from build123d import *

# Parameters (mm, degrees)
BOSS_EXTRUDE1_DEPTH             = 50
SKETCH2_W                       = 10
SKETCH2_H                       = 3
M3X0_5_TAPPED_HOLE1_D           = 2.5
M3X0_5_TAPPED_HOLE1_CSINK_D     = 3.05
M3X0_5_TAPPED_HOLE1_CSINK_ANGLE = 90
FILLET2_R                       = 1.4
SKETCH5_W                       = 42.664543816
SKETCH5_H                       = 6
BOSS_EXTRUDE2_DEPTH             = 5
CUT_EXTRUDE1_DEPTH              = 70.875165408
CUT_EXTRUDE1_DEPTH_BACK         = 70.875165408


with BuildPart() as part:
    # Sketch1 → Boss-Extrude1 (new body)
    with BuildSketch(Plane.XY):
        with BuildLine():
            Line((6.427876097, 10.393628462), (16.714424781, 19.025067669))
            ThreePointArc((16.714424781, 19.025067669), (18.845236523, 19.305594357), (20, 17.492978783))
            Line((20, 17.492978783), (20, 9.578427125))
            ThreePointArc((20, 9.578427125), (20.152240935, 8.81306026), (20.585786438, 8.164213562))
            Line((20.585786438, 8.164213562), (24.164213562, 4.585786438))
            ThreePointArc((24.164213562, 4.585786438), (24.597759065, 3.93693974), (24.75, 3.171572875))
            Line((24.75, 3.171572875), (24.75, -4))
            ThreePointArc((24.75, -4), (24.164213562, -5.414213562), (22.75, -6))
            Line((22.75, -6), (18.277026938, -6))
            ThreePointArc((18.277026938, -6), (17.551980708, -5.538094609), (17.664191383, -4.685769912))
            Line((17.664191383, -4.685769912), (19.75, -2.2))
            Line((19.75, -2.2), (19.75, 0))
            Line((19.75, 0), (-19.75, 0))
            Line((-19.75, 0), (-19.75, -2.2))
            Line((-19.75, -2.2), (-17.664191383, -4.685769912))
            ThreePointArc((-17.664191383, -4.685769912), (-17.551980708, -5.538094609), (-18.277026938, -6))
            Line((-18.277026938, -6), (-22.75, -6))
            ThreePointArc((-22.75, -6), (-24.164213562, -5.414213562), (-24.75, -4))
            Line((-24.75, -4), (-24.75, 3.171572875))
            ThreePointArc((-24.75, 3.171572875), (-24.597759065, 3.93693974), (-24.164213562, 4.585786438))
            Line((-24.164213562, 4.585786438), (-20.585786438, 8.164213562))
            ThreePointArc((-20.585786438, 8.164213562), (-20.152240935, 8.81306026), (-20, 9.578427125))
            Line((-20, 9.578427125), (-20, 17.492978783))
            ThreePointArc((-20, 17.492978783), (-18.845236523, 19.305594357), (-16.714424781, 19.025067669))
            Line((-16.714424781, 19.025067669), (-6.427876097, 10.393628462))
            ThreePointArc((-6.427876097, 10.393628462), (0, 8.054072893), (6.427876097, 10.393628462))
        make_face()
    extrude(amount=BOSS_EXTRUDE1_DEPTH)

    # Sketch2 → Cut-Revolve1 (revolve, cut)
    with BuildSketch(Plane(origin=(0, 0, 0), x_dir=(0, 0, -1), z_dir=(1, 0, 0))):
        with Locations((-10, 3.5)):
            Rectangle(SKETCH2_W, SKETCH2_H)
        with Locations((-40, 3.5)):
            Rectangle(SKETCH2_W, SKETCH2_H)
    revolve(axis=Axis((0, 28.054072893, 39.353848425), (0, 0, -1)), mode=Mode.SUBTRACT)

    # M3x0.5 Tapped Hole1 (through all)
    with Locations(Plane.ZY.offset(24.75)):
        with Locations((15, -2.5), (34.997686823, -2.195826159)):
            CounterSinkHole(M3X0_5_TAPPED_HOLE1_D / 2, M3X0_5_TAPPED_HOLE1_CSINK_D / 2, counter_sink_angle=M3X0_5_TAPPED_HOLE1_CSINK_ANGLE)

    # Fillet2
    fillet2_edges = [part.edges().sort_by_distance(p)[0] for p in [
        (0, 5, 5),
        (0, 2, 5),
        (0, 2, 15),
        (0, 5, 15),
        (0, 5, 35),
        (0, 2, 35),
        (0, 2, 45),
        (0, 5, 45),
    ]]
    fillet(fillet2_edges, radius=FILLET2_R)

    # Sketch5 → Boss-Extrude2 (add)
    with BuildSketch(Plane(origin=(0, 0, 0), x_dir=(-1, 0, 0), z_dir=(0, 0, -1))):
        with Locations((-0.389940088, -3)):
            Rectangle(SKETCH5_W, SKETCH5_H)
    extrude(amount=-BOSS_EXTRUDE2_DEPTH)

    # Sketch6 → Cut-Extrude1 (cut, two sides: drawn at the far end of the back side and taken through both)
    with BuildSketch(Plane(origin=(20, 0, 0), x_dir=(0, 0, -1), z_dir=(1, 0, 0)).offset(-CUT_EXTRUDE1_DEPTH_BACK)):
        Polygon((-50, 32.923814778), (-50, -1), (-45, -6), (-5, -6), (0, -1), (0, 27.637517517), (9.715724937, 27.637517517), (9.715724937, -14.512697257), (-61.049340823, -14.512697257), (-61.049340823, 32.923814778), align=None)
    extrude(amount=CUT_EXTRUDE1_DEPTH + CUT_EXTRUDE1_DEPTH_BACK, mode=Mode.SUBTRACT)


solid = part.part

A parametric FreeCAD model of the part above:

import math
import FreeCAD as App
import Part
import Sketcher
Q = App.Units.Quantity


def edges_at(feature, points):
    """Names of the edges that pass closest to the given points."""
    edges = feature.Shape.Edges
    near = lambda p: min(range(len(edges)), key=lambda i: edges[i].distToShape(Part.Vertex(*p))[0])
    return sorted({f"Edge{near(p) + 1}" for p in points})

doc = App.newDocument("Part")
params = doc.addObject("Spreadsheet::Sheet", "Params")
for row, (alias, value) in enumerate([
    ("sketch1_radius", "10 mm"),
    ("sketch1_radius2", "2 mm"),
    ("sketch1_radius3", "0.8 mm"),
    ("sketch1_width", "39.5 mm"),
    ("sketch1_height", "2.2 mm"),
    ("pad1_length", "50 mm"),
    ("sketch2_width", "3 mm"),
    ("sketch2_height", "10 mm"),
    ("sketch2_height2", "40 mm"),
    ("groove_angle", "360 deg"),
    ("sketch3_diameter", "2.5 mm"),
    ("hole_diameter", "2.5 mm"),
    ("hole_csink_diameter", "3.05 mm"),
    ("fillet_radius", "1.4 mm"),
    ("sketch4_height", "6 mm"),
    ("pad2_length", "5 mm"),
    ("sketch5_height", "40 mm"),
], start=1):
    params.set(f"A{row}", alias)
    params.set(f"B{row}", "=" + value)
    params.setAlias(f"B{row}", alias)

body = doc.addObject("PartDesign::Body", "Body")

sketch1 = doc.addObject("Sketcher::SketchObject", "Sketch")
body.addObject(sketch1)
sketch1.AttachmentSupport = (doc.XY_Plane, [""])
sketch1.MapMode = "FlatFace"
sketch1.addGeometry(Part.LineSegment(App.Vector(16.7, 19, 0), App.Vector(6.4, 10.4, 0)), False)
sketch1.addGeometry(Part.ArcOfCircle(Part.Circle(App.Vector(0, 18.1, 0), App.Vector(0, 0, 1), 10), math.radians(-130), math.radians(-50)), False)
sketch1.addGeometry(Part.LineSegment(App.Vector(-6.4, 10.4, 0), App.Vector(-16.7, 19, 0)), False)
sketch1.addGeometry(Part.ArcOfCircle(Part.Circle(App.Vector(-18, 17.5, 0), App.Vector(0, 0, 1), 2), math.radians(50), math.radians(180)), False)
sketch1.addGeometry(Part.LineSegment(App.Vector(-20, 17.5, 0), App.Vector(-20, 9.6, 0)), False)
sketch1.addGeometry(Part.ArcOfCircle(Part.Circle(App.Vector(-22, 9.6, 0), App.Vector(0, 0, 1), 2), math.radians(-45), math.radians(0)), False)
sketch1.addGeometry(Part.LineSegment(App.Vector(-20.6, 8.2, 0), App.Vector(-24.2, 4.6, 0)), False)
sketch1.addGeometry(Part.ArcOfCircle(Part.Circle(App.Vector(-22.8, 3.2, 0), App.Vector(0, 0, 1), 2), math.radians(135), math.radians(180)), False)
sketch1.addGeometry(Part.LineSegment(App.Vector(-24.8, 3.2, 0), App.Vector(-24.8, -4, 0)), False)
sketch1.addGeometry(Part.ArcOfCircle(Part.Circle(App.Vector(-22.7, -4, 0), App.Vector(0, 0, 1), 2), math.radians(-180), math.radians(-90)), False)
sketch1.addGeometry(Part.LineSegment(App.Vector(-22.8, -6, 0), App.Vector(-18.3, -6, 0)), False)
sketch1.addGeometry(Part.ArcOfCircle(Part.Circle(App.Vector(-18.3, -5.2, 0), App.Vector(0, 0, 1), 0.8), math.radians(-90), math.radians(40)), False)
sketch1.addGeometry(Part.LineSegment(App.Vector(-17.7, -4.7, 0), App.Vector(-19.8, -2.2, 0)), False)
sketch1.addGeometry(Part.LineSegment(App.Vector(-19.8, -2.2, 0), App.Vector(-19.8, 0, 0)), False)
sketch1.addGeometry(Part.LineSegment(App.Vector(-19.8, 0, 0), App.Vector(19.8, 0, 0)), False)
sketch1.addGeometry(Part.LineSegment(App.Vector(19.8, 0, 0), App.Vector(19.8, -2.2, 0)), False)
sketch1.addGeometry(Part.LineSegment(App.Vector(19.8, -2.2, 0), App.Vector(17.7, -4.7, 0)), False)
sketch1.addGeometry(Part.ArcOfCircle(Part.Circle(App.Vector(18.3, -5.2, 0), App.Vector(0, 0, 1), 0.8), math.radians(140), math.radians(270)), False)
sketch1.addGeometry(Part.LineSegment(App.Vector(18.3, -6, 0), App.Vector(22.8, -6, 0)), False)
sketch1.addGeometry(Part.ArcOfCircle(Part.Circle(App.Vector(22.7, -4, 0), App.Vector(0, 0, 1), 2), math.radians(-90), math.radians(0)), False)
sketch1.addGeometry(Part.LineSegment(App.Vector(24.8, -4, 0), App.Vector(24.8, 3.2, 0)), False)
sketch1.addGeometry(Part.ArcOfCircle(Part.Circle(App.Vector(22.8, 3.2, 0), App.Vector(0, 0, 1), 2), math.radians(0), math.radians(45)), False)
sketch1.addGeometry(Part.LineSegment(App.Vector(24.2, 4.6, 0), App.Vector(20.6, 8.2, 0)), False)
sketch1.addGeometry(Part.ArcOfCircle(Part.Circle(App.Vector(22, 9.6, 0), App.Vector(0, 0, 1), 2), math.radians(180), math.radians(225)), False)
sketch1.addGeometry(Part.LineSegment(App.Vector(20, 9.6, 0), App.Vector(20, 17.5, 0)), False)
sketch1.addGeometry(Part.ArcOfCircle(Part.Circle(App.Vector(18, 17.5, 0), App.Vector(0, 0, 1), 2), math.radians(0), math.radians(130)), False)
sketch1.addConstraint(Sketcher.Constraint("Tangent", 0, 2, 1, 2))
sketch1.addConstraint(Sketcher.Constraint("Tangent", 1, 1, 2, 1))
sketch1.addConstraint(Sketcher.Constraint("Tangent", 2, 2, 3, 1))
sketch1.addConstraint(Sketcher.Constraint("Tangent", 3, 2, 4, 1))
sketch1.addConstraint(Sketcher.Constraint("Tangent", 4, 2, 5, 2))
sketch1.addConstraint(Sketcher.Constraint("Tangent", 5, 1, 6, 1))
sketch1.addConstraint(Sketcher.Constraint("Tangent", 6, 2, 7, 1))
sketch1.addConstraint(Sketcher.Constraint("Tangent", 7, 2, 8, 1))
sketch1.addConstraint(Sketcher.Constraint("Tangent", 8, 2, 9, 1))
sketch1.addConstraint(Sketcher.Constraint("Tangent", 9, 2, 10, 1))
sketch1.addConstraint(Sketcher.Constraint("Tangent", 10, 2, 11, 1))
sketch1.addConstraint(Sketcher.Constraint("Tangent", 11, 2, 12, 1))
sketch1.addConstraint(Sketcher.Constraint("Coincident", 12, 2, 13, 1))
sketch1.addConstraint(Sketcher.Constraint("Coincident", 13, 2, 14, 1))
sketch1.addConstraint(Sketcher.Constraint("Coincident", 14, 2, 15, 1))
sketch1.addConstraint(Sketcher.Constraint("Coincident", 15, 2, 16, 1))
sketch1.addConstraint(Sketcher.Constraint("Tangent", 16, 2, 17, 1))
sketch1.addConstraint(Sketcher.Constraint("Tangent", 17, 2, 18, 1))
sketch1.addConstraint(Sketcher.Constraint("Tangent", 18, 2, 19, 1))
sketch1.addConstraint(Sketcher.Constraint("Tangent", 19, 2, 20, 1))
sketch1.addConstraint(Sketcher.Constraint("Tangent", 20, 2, 21, 1))
sketch1.addConstraint(Sketcher.Constraint("Tangent", 21, 2, 22, 1))
sketch1.addConstraint(Sketcher.Constraint("Tangent", 22, 2, 23, 2))
sketch1.addConstraint(Sketcher.Constraint("Tangent", 23, 1, 24, 1))
sketch1.addConstraint(Sketcher.Constraint("Tangent", 24, 2, 25, 1))
sketch1.addConstraint(Sketcher.Constraint("Tangent", 25, 2, 0, 1))
sketch1.addConstraint(Sketcher.Constraint("Vertical", 4))
sketch1.addConstraint(Sketcher.Constraint("Vertical", 8))
sketch1.addConstraint(Sketcher.Constraint("Horizontal", 10))
sketch1.addConstraint(Sketcher.Constraint("Vertical", 13))
sketch1.addConstraint(Sketcher.Constraint("Horizontal", 14))
sketch1.addConstraint(Sketcher.Constraint("Vertical", 15))
sketch1.addConstraint(Sketcher.Constraint("Horizontal", 18))
sketch1.addConstraint(Sketcher.Constraint("Vertical", 20))
sketch1.addConstraint(Sketcher.Constraint("Vertical", 24))
sketch1.addConstraint(Sketcher.Constraint("Equal", 3, 5))
sketch1.addConstraint(Sketcher.Constraint("Equal", 5, 7))
sketch1.addConstraint(Sketcher.Constraint("Equal", 7, 9))
sketch1.addConstraint(Sketcher.Constraint("Equal", 11, 17))
sketch1.addConstraint(Sketcher.Constraint("Equal", 9, 19))
sketch1.addConstraint(Sketcher.Constraint("Equal", 19, 21))
sketch1.addConstraint(Sketcher.Constraint("Equal", 21, 23))
sketch1.addConstraint(Sketcher.Constraint("Equal", 23, 25))
sketch1.addConstraint(Sketcher.Constraint("Symmetric", 13, 2, 14, 2, -1, 1))
sketch1.addConstraint(Sketcher.Constraint("Symmetric", 11, 3, 17, 3, -2))
sketch1.addConstraint(Sketcher.Constraint("Symmetric", 7, 3, 21, 3, -2))
sketch1.addConstraint(Sketcher.Constraint("Symmetric", 5, 3, 23, 3, -2))
sketch1.addConstraint(Sketcher.Constraint("Symmetric", 0, 2, 1, 1, -2))
sketch1.addConstraint(Sketcher.Constraint("Perpendicular", 0, 12))
sketch1.addConstraint(Sketcher.Constraint("Perpendicular", 2, 16))
sketch1.addConstraint(Sketcher.Constraint("Perpendicular", 6, 22))
sketch1.addConstraint(Sketcher.Constraint("Radius", 1, 10.0))
sketch1.addConstraint(Sketcher.Constraint("Radius", 3, 2.0))
sketch1.addConstraint(Sketcher.Constraint("Radius", 11, 0.8))
sketch1.addConstraint(Sketcher.Constraint("Angle", 0, Q("-140 deg")))
sketch1.addConstraint(Sketcher.Constraint("DistanceX", 14, 1, 14, 2, 39.5))
sketch1.addConstraint(Sketcher.Constraint("DistanceY", 13, 1, 13, 2, 2.2))
sketch1.addConstraint(Sketcher.Constraint("DistanceX", 3, 3, -1, 1, 18.0))
sketch1.addConstraint(Sketcher.Constraint("DistanceY", 9, 3, -1, 1, 4.0))
sketch1.addConstraint(Sketcher.Constraint("DistanceX", 9, 3, 12, 2, 3.0))
sketch1.addConstraint(Sketcher.Constraint("DistanceY", 4, 2, 4, 1, 7.914552))
sketch1.addConstraint(Sketcher.Constraint("DistanceY", 8, 2, 8, 1, 7.171573))
sketch1.setExpression("Constraints[51]", "Params.sketch1_radius")
sketch1.setExpression("Constraints[52]", "Params.sketch1_radius2")
sketch1.setExpression("Constraints[53]", "Params.sketch1_radius3")
sketch1.setExpression("Constraints[55]", "Params.sketch1_width")
sketch1.setExpression("Constraints[56]", "Params.sketch1_height")
pad1 = doc.addObject("PartDesign::Pad", "Pad")
body.addObject(pad1)
pad1.Profile = sketch1
pad1.setExpression("Length", "Params.pad1_length")

sketch2 = doc.addObject("Sketcher::SketchObject", "Sketch001")
body.addObject(sketch2)
sketch2.AttachmentSupport = (doc.YZ_Plane, [""])
sketch2.MapMode = "FlatFace"
sketch2.addGeometry(Part.LineSegment(App.Vector(5, 15, 0), App.Vector(2, 15, 0)), False)
sketch2.addGeometry(Part.LineSegment(App.Vector(2, 15, 0), App.Vector(2, 5, 0)), False)
sketch2.addGeometry(Part.LineSegment(App.Vector(2, 5, 0), App.Vector(5, 5, 0)), False)
sketch2.addGeometry(Part.LineSegment(App.Vector(5, 5, 0), App.Vector(5, 15, 0)), False)
sketch2.addGeometry(Part.LineSegment(App.Vector(5, 45, 0), App.Vector(2, 45, 0)), False)
sketch2.addGeometry(Part.LineSegment(App.Vector(2, 45, 0), App.Vector(2, 35, 0)), False)
sketch2.addGeometry(Part.LineSegment(App.Vector(2, 35, 0), App.Vector(5, 35, 0)), False)
sketch2.addGeometry(Part.LineSegment(App.Vector(5, 35, 0), App.Vector(5, 45, 0)), False)
sketch2.addGeometry(Part.LineSegment(App.Vector(28.1, 45, 0), App.Vector(28.1, 5, 0)), True)
sketch2.addConstraint(Sketcher.Constraint("Coincident", 0, 2, 1, 1))
sketch2.addConstraint(Sketcher.Constraint("Coincident", 1, 2, 2, 1))
sketch2.addConstraint(Sketcher.Constraint("Coincident", 2, 2, 3, 1))
sketch2.addConstraint(Sketcher.Constraint("Coincident", 3, 2, 0, 1))
sketch2.addConstraint(Sketcher.Constraint("Coincident", 4, 2, 5, 1))
sketch2.addConstraint(Sketcher.Constraint("Coincident", 5, 2, 6, 1))
sketch2.addConstraint(Sketcher.Constraint("Coincident", 6, 2, 7, 1))
sketch2.addConstraint(Sketcher.Constraint("Coincident", 7, 2, 4, 1))
sketch2.addConstraint(Sketcher.Constraint("Horizontal", 0))
sketch2.addConstraint(Sketcher.Constraint("Vertical", 1))
sketch2.addConstraint(Sketcher.Constraint("Horizontal", 2))
sketch2.addConstraint(Sketcher.Constraint("Vertical", 3))
sketch2.addConstraint(Sketcher.Constraint("Horizontal", 4))
sketch2.addConstraint(Sketcher.Constraint("Vertical", 5))
sketch2.addConstraint(Sketcher.Constraint("Horizontal", 6))
sketch2.addConstraint(Sketcher.Constraint("Vertical", 7))
sketch2.addConstraint(Sketcher.Constraint("Vertical", 8))
sketch2.addConstraint(Sketcher.Constraint("Horizontal", 7, 2, 8, 1))
sketch2.addConstraint(Sketcher.Constraint("Horizontal", 2, 2, 8, 2))
sketch2.addConstraint(Sketcher.Constraint("Vertical", 1, 2, 4, 2))
sketch2.addConstraint(Sketcher.Constraint("Vertical", 3, 2, 6, 2))
sketch2.addConstraint(Sketcher.Constraint("Equal", 3, 5))
sketch2.addConstraint(Sketcher.Constraint("DistanceX", 0, 2, 0, 1, 3.0))
sketch2.addConstraint(Sketcher.Constraint("DistanceY", 1, 2, 1, 1, 10.0))
sketch2.addConstraint(Sketcher.Constraint("DistanceY", 8, 2, 8, 1, 40.0))
sketch2.addConstraint(Sketcher.Constraint("DistanceX", -1, 1, 0, 2, 2.0))
sketch2.addConstraint(Sketcher.Constraint("DistanceY", -1, 1, 0, 2, 15.0))
sketch2.addConstraint(Sketcher.Constraint("DistanceX", -1, 1, 8, 1, 28.054073))
sketch2.setExpression("Constraints[22]", "Params.sketch2_width")
sketch2.setExpression("Constraints[23]", "Params.sketch2_height")
sketch2.setExpression("Constraints[24]", "Params.sketch2_height2")
groove = doc.addObject("PartDesign::Groove", "Groove")
body.addObject(groove)
groove.Profile = sketch2
groove.ReferenceAxis = (sketch2, ["Axis0"])
groove.setExpression("Angle", "Params.groove_angle")

sketch3 = doc.addObject("Sketcher::SketchObject", "Sketch002")
body.addObject(sketch3)
sketch3.AttachmentSupport = (doc.YZ_Plane, [""])
sketch3.MapMode = "FlatFace"
sketch3.AttachmentOffset = App.Placement(App.Vector(0, 0, -24.75), App.Rotation())
sketch3.addGeometry(Part.Circle(App.Vector(-2.5, 15, 0), App.Vector(0, 0, 1), 1.2), False)
sketch3.addGeometry(Part.Circle(App.Vector(-2.2, 35, 0), App.Vector(0, 0, 1), 1.2), False)
sketch3.addConstraint(Sketcher.Constraint("Equal", 0, 1))
sketch3.addConstraint(Sketcher.Constraint("Diameter", 0, 2.5))
sketch3.addConstraint(Sketcher.Constraint("DistanceY", -1, 1, 0, 3, 15.0))
sketch3.addConstraint(Sketcher.Constraint("DistanceX", 0, 3, -1, 1, 2.5))
sketch3.addConstraint(Sketcher.Constraint("DistanceX", 1, 3, -1, 1, 2.195826))
sketch3.addConstraint(Sketcher.Constraint("DistanceY", -1, 1, 1, 3, 34.997687))
sketch3.setExpression("Constraints[1]", "Params.sketch3_diameter")
doc.recompute()
hole = doc.addObject("PartDesign::Hole", "Hole")
body.addObject(hole)
hole.Profile = sketch3
hole.ThreadType = "None"
hole.setExpression("Diameter", "Params.hole_diameter")
hole.DepthType = "ThroughAll"
hole.HoleCutType = "Countersink"
hole.setExpression("HoleCutDiameter", "Params.hole_csink_diameter")
hole.HoleCutCountersinkAngle = 90
hole.Reversed = True
doc.recompute()

fillet = doc.addObject("PartDesign::Fillet", "Fillet")
body.addObject(fillet)
fillet.Base = (hole, edges_at(hole, [
    (0, 5, 5),
    (0, 2, 5),
    (0, 2, 15),
    (0, 5, 15),
    (0, 5, 35),
    (0, 2, 35),
    (0, 2, 45),
    (0, 5, 45),
]))
fillet.setExpression("Radius", "Params.fillet_radius")

sketch4 = doc.addObject("Sketcher::SketchObject", "Sketch003")
body.addObject(sketch4)
sketch4.AttachmentSupport = (doc.XY_Plane, [""])
sketch4.MapMode = "FlatFace"
sketch4.addGeometry(Part.LineSegment(App.Vector(22, 0, 0), App.Vector(22, -6, 0)), False)
sketch4.addGeometry(Part.LineSegment(App.Vector(22, -6, 0), App.Vector(-21, -6, 0)), False)
sketch4.addGeometry(Part.LineSegment(App.Vector(-21, -6, 0), App.Vector(-21, 0, 0)), False)
sketch4.addGeometry(Part.LineSegment(App.Vector(-21, 0, 0), App.Vector(22, 0, 0)), False)
sketch4.addConstraint(Sketcher.Constraint("Coincident", 0, 2, 1, 1))
sketch4.addConstraint(Sketcher.Constraint("Coincident", 1, 2, 2, 1))
sketch4.addConstraint(Sketcher.Constraint("Coincident", 2, 2, 3, 1))
sketch4.addConstraint(Sketcher.Constraint("Coincident", 3, 2, 0, 1))
sketch4.addConstraint(Sketcher.Constraint("Vertical", 0))
sketch4.addConstraint(Sketcher.Constraint("Horizontal", 1))
sketch4.addConstraint(Sketcher.Constraint("Vertical", 2))
sketch4.addConstraint(Sketcher.Constraint("Horizontal", 3))
sketch4.addConstraint(Sketcher.Constraint("PointOnObject", 2, 2, -1))
sketch4.addConstraint(Sketcher.Constraint("DistanceY", 0, 2, 0, 1, 6.0))
sketch4.addConstraint(Sketcher.Constraint("DistanceX", 1, 2, 1, 1, 42.664544))
sketch4.addConstraint(Sketcher.Constraint("DistanceX", -1, 1, 0, 2, 21.722212))
sketch4.setExpression("Constraints[9]", "Params.sketch4_height")
pad2 = doc.addObject("PartDesign::Pad", "Pad001")
body.addObject(pad2)
pad2.Profile = sketch4
pad2.setExpression("Length", "Params.pad2_length")

sketch5 = doc.addObject("Sketcher::SketchObject", "Sketch004")
body.addObject(sketch5)
sketch5.AttachmentSupport = (doc.YZ_Plane, [""])
sketch5.MapMode = "FlatFace"
sketch5.AttachmentOffset = App.Placement(App.Vector(0, 0, 20), App.Rotation())
sketch5.addGeometry(Part.LineSegment(App.Vector(-1, 50, 0), App.Vector(33, 50, 0)), False)
sketch5.addGeometry(Part.LineSegment(App.Vector(33, 50, 0), App.Vector(33, 61, 0)), False)
sketch5.addGeometry(Part.LineSegment(App.Vector(33, 61, 0), App.Vector(-15, 61, 0)), False)
sketch5.addGeometry(Part.LineSegment(App.Vector(-15, 61, 0), App.Vector(-15, -10, 0)), False)
sketch5.addGeometry(Part.LineSegment(App.Vector(-15, -10, 0), App.Vector(28, -10, 0)), False)
sketch5.addGeometry(Part.LineSegment(App.Vector(28, -10, 0), App.Vector(28, 0, 0)), False)
sketch5.addGeometry(Part.LineSegment(App.Vector(28, 0, 0), App.Vector(-1, 0, 0)), False)
sketch5.addGeometry(Part.LineSegment(App.Vector(-1, 0, 0), App.Vector(-6, 5, 0)), False)
sketch5.addGeometry(Part.LineSegment(App.Vector(-6, 5, 0), App.Vector(-6, 45, 0)), False)
sketch5.addGeometry(Part.LineSegment(App.Vector(-6, 45, 0), App.Vector(-1, 50, 0)), False)
sketch5.addConstraint(Sketcher.Constraint("Coincident", 0, 2, 1, 1))
sketch5.addConstraint(Sketcher.Constraint("Coincident", 1, 2, 2, 1))
sketch5.addConstraint(Sketcher.Constraint("Coincident", 2, 2, 3, 1))
sketch5.addConstraint(Sketcher.Constraint("Coincident", 3, 2, 4, 1))
sketch5.addConstraint(Sketcher.Constraint("Coincident", 4, 2, 5, 1))
sketch5.addConstraint(Sketcher.Constraint("Coincident", 5, 2, 6, 1))
sketch5.addConstraint(Sketcher.Constraint("Coincident", 6, 2, 7, 1))
sketch5.addConstraint(Sketcher.Constraint("Coincident", 7, 2, 8, 1))
sketch5.addConstraint(Sketcher.Constraint("Coincident", 8, 2, 9, 1))
sketch5.addConstraint(Sketcher.Constraint("Coincident", 9, 2, 0, 1))
sketch5.addConstraint(Sketcher.Constraint("Horizontal", 0))
sketch5.addConstraint(Sketcher.Constraint("Vertical", 1))
sketch5.addConstraint(Sketcher.Constraint("Horizontal", 2))
sketch5.addConstraint(Sketcher.Constraint("Vertical", 3))
sketch5.addConstraint(Sketcher.Constraint("Horizontal", 4))
sketch5.addConstraint(Sketcher.Constraint("Vertical", 5))
sketch5.addConstraint(Sketcher.Constraint("Horizontal", 6))
sketch5.addConstraint(Sketcher.Constraint("Vertical", 8))
sketch5.addConstraint(Sketcher.Constraint("PointOnObject", 5, 2, -1))
sketch5.addConstraint(Sketcher.Constraint("Perpendicular", 7, 9))
sketch5.addConstraint(Sketcher.Constraint("Vertical", 6, 2, 9, 2))
sketch5.addConstraint(Sketcher.Constraint("Equal", 7, 9))
sketch5.addConstraint(Sketcher.Constraint("DistanceY", 8, 1, 8, 2, 40.0))
sketch5.addConstraint(Sketcher.Constraint("DistanceY", -1, 1, 0, 2, 50.0))
sketch5.addConstraint(Sketcher.Constraint("DistanceX", 6, 2, -1, 1, 1.0))
sketch5.addConstraint(Sketcher.Constraint("DistanceY", 1, 1, 1, 2, 11.049341))
sketch5.addConstraint(Sketcher.Constraint("DistanceX", 0, 1, 0, 2, 33.923815))
sketch5.addConstraint(Sketcher.Constraint("DistanceX", 2, 2, 2, 1, 47.436512))
sketch5.addConstraint(Sketcher.Constraint("DistanceX", 4, 1, 4, 2, 42.150215))
sketch5.addConstraint(Sketcher.Constraint("DistanceY", 3, 2, 3, 1, 70.765066))
sketch5.setExpression("Constraints[22]", "Params.sketch5_height")
pocket1 = doc.addObject("PartDesign::Pocket", "Pocket")
body.addObject(pocket1)
pocket1.Profile = sketch5
pocket1.Type = "ThroughAll"
pocket1.Midplane = True

doc.recompute()
